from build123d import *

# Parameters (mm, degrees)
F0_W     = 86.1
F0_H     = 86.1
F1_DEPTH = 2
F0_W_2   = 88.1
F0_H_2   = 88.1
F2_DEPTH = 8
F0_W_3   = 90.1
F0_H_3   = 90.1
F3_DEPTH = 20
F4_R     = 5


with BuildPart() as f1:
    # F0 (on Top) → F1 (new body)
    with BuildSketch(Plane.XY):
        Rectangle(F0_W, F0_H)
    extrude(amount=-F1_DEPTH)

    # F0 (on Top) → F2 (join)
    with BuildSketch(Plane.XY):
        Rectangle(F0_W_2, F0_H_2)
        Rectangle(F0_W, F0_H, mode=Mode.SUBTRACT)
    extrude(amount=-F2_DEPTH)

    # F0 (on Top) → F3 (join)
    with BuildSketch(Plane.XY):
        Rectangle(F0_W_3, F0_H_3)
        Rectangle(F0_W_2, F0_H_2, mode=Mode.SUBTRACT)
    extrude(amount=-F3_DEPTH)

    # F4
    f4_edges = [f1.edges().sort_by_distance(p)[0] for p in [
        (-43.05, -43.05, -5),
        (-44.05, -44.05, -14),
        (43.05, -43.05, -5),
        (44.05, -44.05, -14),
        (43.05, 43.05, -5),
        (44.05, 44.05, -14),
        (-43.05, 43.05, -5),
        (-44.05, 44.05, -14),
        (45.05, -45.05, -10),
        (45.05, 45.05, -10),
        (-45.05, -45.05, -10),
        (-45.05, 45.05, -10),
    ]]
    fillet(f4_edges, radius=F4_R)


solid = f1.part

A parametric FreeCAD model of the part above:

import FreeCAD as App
import Part
import Sketcher
Q = App.Units.Quantity


def edges_at(feature, points):
    """Names of the edges that pass closest to the given points."""
    edges = feature.Shape.Edges
    near = lambda p: min(range(len(edges)), key=lambda i: edges[i].distToShape(Part.Vertex(*p))[0])
    return sorted({f"Edge{near(p) + 1}" for p in points})

doc = App.newDocument("Part")
params = doc.addObject("Spreadsheet::Sheet", "Params")
for row, (alias, value) in enumerate([
    ("sketch1_width", "86.1 mm"),
    ("pad1_length", "2 mm"),
    ("sketch2_width", "88.1 mm"),
    ("sketch2_width2", "86.1 mm"),
    ("pad2_length", "8 mm"),
    ("sketch3_width", "90.1 mm"),
    ("sketch3_width2", "88.1 mm"),
    ("pad3_length", "20 mm"),
    ("fillet_radius", "5 mm"),
], start=1):
    params.set(f"A{row}", alias)
    params.set(f"B{row}", "=" + value)
    params.setAlias(f"B{row}", alias)

body = doc.addObject("PartDesign::Body", "Body")

# Sketch on XY plane
sketch1 = body.newObject("Sketcher::SketchObject", "Sketch")
sketch1.AttachmentSupport = (doc.getObject("XY_Plane"), [""])
sketch1.MapMode = "FlatFace"
sketch1.addGeometry([
    Part.LineSegment(App.Vector(-43.05, 43.05, 0), App.Vector(-43.05, -43.05, 0)),
    Part.LineSegment(App.Vector(-43.05, -43.05, 0), App.Vector(43.05, -43.05, 0)),
    Part.LineSegment(App.Vector(43.05, -43.05, 0), App.Vector(43.05, 43.05, 0)),
    Part.LineSegment(App.Vector(43.05, 43.05, 0), App.Vector(-43.05, 43.05, 0)),
], False)
sketch1.addConstraint([
    Sketcher.Constraint("Coincident", 0, 2, 1, 1),
    Sketcher.Constraint("Coincident", 1, 2, 2, 1),
    Sketcher.Constraint("Coincident", 2, 2, 3, 1),
    Sketcher.Constraint("Coincident", 3, 2, 0, 1),
    Sketcher.Constraint("Vertical", 0),
    Sketcher.Constraint("Horizontal", 1),
    Sketcher.Constraint("Vertical", 2),
    Sketcher.Constraint("Horizontal", 3),
    Sketcher.Constraint("Symmetric", 0, 2, 2, 2, -1, 1),
    Sketcher.Constraint("Equal", 3, 0),
    Sketcher.Constraint("DistanceX", 1, 1, 1, 2, Q("86.1 mm")),
])
sketch1.setExpression("Constraints[10]", "Params.sketch1_width")
pad1 = body.newObject("PartDesign::Pad", "Pad")
pad1.Profile = sketch1
pad1.setExpression("Length", "Params.pad1_length")
pad1.Reversed = True

# Sketch on XY plane
sketch2 = body.newObject("Sketcher::SketchObject", "Sketch001")
sketch2.AttachmentSupport = (doc.getObject("XY_Plane"), [""])
sketch2.MapMode = "FlatFace"
sketch2.addGeometry([
    Part.LineSegment(App.Vector(-44.05, 44.05, 0), App.Vector(-44.05, -44.05, 0)),  # 0
    Part.LineSegment(App.Vector(-44.05, -44.05, 0), App.Vector(44.05, -44.05, 0)),  # 1
    Part.LineSegment(App.Vector(44.05, -44.05, 0), App.Vector(44.05, 44.05, 0)),  # 2
    Part.LineSegment(App.Vector(44.05, 44.05, 0), App.Vector(-44.05, 44.05, 0)),  # 3
    Part.LineSegment(App.Vector(43.05, -43.05, 0), App.Vector(-43.05, -43.05, 0)),  # 4
    Part.LineSegment(App.Vector(-43.05, -43.05, 0), App.Vector(-43.05, 43.05, 0)),  # 5
    Part.LineSegment(App.Vector(-43.05, 43.05, 0), App.Vector(43.05, 43.05, 0)),  # 6
    Part.LineSegment(App.Vector(43.05, 43.05, 0), App.Vector(43.05, -43.05, 0)),  # 7
], False)
sketch2.addConstraint([
    Sketcher.Constraint("Coincident", 0, 2, 1, 1),
    Sketcher.Constraint("Coincident", 1, 2, 2, 1),
    Sketcher.Constraint("Coincident", 2, 2, 3, 1),
    Sketcher.Constraint("Coincident", 3, 2, 0, 1),
    Sketcher.Constraint("Coincident", 4, 2, 5, 1),
    Sketcher.Constraint("Coincident", 5, 2, 6, 1),
    Sketcher.Constraint("Coincident", 6, 2, 7, 1),
    Sketcher.Constraint("Coincident", 7, 2, 4, 1),
    Sketcher.Constraint("Vertical", 0),
    Sketcher.Constraint("Horizontal", 1),
    Sketcher.Constraint("Vertical", 2),
    Sketcher.Constraint("Horizontal", 3),
    Sketcher.Constraint("Horizontal", 4),
    Sketcher.Constraint("Vertical", 5),
    Sketcher.Constraint("Horizontal", 6),
    Sketcher.Constraint("Vertical", 7),
    Sketcher.Constraint("Symmetric", 0, 2, 2, 2, -1, 1),
    Sketcher.Constraint("Symmetric", 4, 2, 6, 2, -1, 1),
    Sketcher.Constraint("Equal", 3, 0),
    Sketcher.Constraint("Equal", 6, 5),
    Sketcher.Constraint("DistanceX", 1, 1, 1, 2, Q("88.1 mm")),
    Sketcher.Constraint("DistanceX", 4, 2, 4, 1, Q("86.1 mm")),
])
sketch2.setExpression("Constraints[20]", "Params.sketch2_width")
sketch2.setExpression("Constraints[21]", "Params.sketch2_width2")
pad2 = body.newObject("PartDesign::Pad", "Pad001")
pad2.Profile = sketch2
pad2.setExpression("Length", "Params.pad2_length")
pad2.Reversed = True

# Sketch on XY plane
sketch3 = body.newObject("Sketcher::SketchObject", "Sketch002")
sketch3.AttachmentSupport = (doc.getObject("XY_Plane"), [""])
sketch3.MapMode = "FlatFace"
sketch3.addGeometry([
    Part.LineSegment(App.Vector(-45.05, 45.05, 0), App.Vector(-45.05, -45.05, 0)),  # 0
    Part.LineSegment(App.Vector(-45.05, -45.05, 0), App.Vector(45.05, -45.05, 0)),  # 1
    Part.LineSegment(App.Vector(45.05, -45.05, 0), App.Vector(45.05, 45.05, 0)),  # 2
    Part.LineSegment(App.Vector(45.05, 45.05, 0), App.Vector(-45.05, 45.05, 0)),  # 3
    Part.LineSegment(App.Vector(44.05, -44.05, 0), App.Vector(-44.05, -44.05, 0)),  # 4
    Part.LineSegment(App.Vector(-44.05, -44.05, 0), App.Vector(-44.05, 44.05, 0)),  # 5
    Part.LineSegment(App.Vector(-44.05, 44.05, 0), App.Vector(44.05, 44.05, 0)),  # 6
    Part.LineSegment(App.Vector(44.05, 44.05, 0), App.Vector(44.05, -44.05, 0)),  # 7
], False)
sketch3.addConstraint([
    Sketcher.Constraint("Coincident", 0, 2, 1, 1),
    Sketcher.Constraint("Coincident", 1, 2, 2, 1),
    Sketcher.Constraint("Coincident", 2, 2, 3, 1),
    Sketcher.Constraint("Coincident", 3, 2, 0, 1),
    Sketcher.Constraint("Coincident", 4, 2, 5, 1),
    Sketcher.Constraint("Coincident", 5, 2, 6, 1),
    Sketcher.Constraint("Coincident", 6, 2, 7, 1),
    Sketcher.Constraint("Coincident", 7, 2, 4, 1),
    Sketcher.Constraint("Vertical", 0),
    Sketcher.Constraint("Horizontal", 1),
    Sketcher.Constraint("Vertical", 2),
    Sketcher.Constraint("Horizontal", 3),
    Sketcher.Constraint("Horizontal", 4),
    Sketcher.Constraint("Vertical", 5),
    Sketcher.Constraint("Horizontal", 6),
    Sketcher.Constraint("Vertical", 7),
    Sketcher.Constraint("Symmetric", 0, 2, 2, 2, -1, 1),
    Sketcher.Constraint("Symmetric", 4, 2, 6, 2, -1, 1),
    Sketcher.Constraint("Equal", 3, 0),
    Sketcher.Constraint("Equal", 6, 5),
    Sketcher.Constraint("DistanceX", 1, 1, 1, 2, Q("90.1 mm")),
    Sketcher.Constraint("DistanceX", 4, 2, 4, 1, Q("88.1 mm")),
])
sketch3.setExpression("Constraints[20]", "Params.sketch3_width")
sketch3.setExpression("Constraints[21]", "Params.sketch3_width2")
pad3 = body.newObject("PartDesign::Pad", "Pad002")
pad3.Profile = sketch3
pad3.setExpression("Length", "Params.pad3_length")
pad3.Reversed = True
doc.recompute()

fillet = body.newObject("PartDesign::Fillet", "Fillet")
fillet.Base = (pad3, edges_at(pad3, [
    (-43.05, -43.05, -5),
    (-44.05, -44.05, -14),
    (43.05, -43.05, -5),
    (44.05, -44.05, -14),
    (43.05, 43.05, -5),
    (44.05, 44.05, -14),
    (-43.05, 43.05, -5),
    (-44.05, 44.05, -14),
    (45.05, -45.05, -10),
    (45.05, 45.05, -10),
    (-45.05, -45.05, -10),
    (-45.05, 45.05, -10),
]))
fillet.setExpression("Radius", "Params.fillet_radius")

doc.recompute()
